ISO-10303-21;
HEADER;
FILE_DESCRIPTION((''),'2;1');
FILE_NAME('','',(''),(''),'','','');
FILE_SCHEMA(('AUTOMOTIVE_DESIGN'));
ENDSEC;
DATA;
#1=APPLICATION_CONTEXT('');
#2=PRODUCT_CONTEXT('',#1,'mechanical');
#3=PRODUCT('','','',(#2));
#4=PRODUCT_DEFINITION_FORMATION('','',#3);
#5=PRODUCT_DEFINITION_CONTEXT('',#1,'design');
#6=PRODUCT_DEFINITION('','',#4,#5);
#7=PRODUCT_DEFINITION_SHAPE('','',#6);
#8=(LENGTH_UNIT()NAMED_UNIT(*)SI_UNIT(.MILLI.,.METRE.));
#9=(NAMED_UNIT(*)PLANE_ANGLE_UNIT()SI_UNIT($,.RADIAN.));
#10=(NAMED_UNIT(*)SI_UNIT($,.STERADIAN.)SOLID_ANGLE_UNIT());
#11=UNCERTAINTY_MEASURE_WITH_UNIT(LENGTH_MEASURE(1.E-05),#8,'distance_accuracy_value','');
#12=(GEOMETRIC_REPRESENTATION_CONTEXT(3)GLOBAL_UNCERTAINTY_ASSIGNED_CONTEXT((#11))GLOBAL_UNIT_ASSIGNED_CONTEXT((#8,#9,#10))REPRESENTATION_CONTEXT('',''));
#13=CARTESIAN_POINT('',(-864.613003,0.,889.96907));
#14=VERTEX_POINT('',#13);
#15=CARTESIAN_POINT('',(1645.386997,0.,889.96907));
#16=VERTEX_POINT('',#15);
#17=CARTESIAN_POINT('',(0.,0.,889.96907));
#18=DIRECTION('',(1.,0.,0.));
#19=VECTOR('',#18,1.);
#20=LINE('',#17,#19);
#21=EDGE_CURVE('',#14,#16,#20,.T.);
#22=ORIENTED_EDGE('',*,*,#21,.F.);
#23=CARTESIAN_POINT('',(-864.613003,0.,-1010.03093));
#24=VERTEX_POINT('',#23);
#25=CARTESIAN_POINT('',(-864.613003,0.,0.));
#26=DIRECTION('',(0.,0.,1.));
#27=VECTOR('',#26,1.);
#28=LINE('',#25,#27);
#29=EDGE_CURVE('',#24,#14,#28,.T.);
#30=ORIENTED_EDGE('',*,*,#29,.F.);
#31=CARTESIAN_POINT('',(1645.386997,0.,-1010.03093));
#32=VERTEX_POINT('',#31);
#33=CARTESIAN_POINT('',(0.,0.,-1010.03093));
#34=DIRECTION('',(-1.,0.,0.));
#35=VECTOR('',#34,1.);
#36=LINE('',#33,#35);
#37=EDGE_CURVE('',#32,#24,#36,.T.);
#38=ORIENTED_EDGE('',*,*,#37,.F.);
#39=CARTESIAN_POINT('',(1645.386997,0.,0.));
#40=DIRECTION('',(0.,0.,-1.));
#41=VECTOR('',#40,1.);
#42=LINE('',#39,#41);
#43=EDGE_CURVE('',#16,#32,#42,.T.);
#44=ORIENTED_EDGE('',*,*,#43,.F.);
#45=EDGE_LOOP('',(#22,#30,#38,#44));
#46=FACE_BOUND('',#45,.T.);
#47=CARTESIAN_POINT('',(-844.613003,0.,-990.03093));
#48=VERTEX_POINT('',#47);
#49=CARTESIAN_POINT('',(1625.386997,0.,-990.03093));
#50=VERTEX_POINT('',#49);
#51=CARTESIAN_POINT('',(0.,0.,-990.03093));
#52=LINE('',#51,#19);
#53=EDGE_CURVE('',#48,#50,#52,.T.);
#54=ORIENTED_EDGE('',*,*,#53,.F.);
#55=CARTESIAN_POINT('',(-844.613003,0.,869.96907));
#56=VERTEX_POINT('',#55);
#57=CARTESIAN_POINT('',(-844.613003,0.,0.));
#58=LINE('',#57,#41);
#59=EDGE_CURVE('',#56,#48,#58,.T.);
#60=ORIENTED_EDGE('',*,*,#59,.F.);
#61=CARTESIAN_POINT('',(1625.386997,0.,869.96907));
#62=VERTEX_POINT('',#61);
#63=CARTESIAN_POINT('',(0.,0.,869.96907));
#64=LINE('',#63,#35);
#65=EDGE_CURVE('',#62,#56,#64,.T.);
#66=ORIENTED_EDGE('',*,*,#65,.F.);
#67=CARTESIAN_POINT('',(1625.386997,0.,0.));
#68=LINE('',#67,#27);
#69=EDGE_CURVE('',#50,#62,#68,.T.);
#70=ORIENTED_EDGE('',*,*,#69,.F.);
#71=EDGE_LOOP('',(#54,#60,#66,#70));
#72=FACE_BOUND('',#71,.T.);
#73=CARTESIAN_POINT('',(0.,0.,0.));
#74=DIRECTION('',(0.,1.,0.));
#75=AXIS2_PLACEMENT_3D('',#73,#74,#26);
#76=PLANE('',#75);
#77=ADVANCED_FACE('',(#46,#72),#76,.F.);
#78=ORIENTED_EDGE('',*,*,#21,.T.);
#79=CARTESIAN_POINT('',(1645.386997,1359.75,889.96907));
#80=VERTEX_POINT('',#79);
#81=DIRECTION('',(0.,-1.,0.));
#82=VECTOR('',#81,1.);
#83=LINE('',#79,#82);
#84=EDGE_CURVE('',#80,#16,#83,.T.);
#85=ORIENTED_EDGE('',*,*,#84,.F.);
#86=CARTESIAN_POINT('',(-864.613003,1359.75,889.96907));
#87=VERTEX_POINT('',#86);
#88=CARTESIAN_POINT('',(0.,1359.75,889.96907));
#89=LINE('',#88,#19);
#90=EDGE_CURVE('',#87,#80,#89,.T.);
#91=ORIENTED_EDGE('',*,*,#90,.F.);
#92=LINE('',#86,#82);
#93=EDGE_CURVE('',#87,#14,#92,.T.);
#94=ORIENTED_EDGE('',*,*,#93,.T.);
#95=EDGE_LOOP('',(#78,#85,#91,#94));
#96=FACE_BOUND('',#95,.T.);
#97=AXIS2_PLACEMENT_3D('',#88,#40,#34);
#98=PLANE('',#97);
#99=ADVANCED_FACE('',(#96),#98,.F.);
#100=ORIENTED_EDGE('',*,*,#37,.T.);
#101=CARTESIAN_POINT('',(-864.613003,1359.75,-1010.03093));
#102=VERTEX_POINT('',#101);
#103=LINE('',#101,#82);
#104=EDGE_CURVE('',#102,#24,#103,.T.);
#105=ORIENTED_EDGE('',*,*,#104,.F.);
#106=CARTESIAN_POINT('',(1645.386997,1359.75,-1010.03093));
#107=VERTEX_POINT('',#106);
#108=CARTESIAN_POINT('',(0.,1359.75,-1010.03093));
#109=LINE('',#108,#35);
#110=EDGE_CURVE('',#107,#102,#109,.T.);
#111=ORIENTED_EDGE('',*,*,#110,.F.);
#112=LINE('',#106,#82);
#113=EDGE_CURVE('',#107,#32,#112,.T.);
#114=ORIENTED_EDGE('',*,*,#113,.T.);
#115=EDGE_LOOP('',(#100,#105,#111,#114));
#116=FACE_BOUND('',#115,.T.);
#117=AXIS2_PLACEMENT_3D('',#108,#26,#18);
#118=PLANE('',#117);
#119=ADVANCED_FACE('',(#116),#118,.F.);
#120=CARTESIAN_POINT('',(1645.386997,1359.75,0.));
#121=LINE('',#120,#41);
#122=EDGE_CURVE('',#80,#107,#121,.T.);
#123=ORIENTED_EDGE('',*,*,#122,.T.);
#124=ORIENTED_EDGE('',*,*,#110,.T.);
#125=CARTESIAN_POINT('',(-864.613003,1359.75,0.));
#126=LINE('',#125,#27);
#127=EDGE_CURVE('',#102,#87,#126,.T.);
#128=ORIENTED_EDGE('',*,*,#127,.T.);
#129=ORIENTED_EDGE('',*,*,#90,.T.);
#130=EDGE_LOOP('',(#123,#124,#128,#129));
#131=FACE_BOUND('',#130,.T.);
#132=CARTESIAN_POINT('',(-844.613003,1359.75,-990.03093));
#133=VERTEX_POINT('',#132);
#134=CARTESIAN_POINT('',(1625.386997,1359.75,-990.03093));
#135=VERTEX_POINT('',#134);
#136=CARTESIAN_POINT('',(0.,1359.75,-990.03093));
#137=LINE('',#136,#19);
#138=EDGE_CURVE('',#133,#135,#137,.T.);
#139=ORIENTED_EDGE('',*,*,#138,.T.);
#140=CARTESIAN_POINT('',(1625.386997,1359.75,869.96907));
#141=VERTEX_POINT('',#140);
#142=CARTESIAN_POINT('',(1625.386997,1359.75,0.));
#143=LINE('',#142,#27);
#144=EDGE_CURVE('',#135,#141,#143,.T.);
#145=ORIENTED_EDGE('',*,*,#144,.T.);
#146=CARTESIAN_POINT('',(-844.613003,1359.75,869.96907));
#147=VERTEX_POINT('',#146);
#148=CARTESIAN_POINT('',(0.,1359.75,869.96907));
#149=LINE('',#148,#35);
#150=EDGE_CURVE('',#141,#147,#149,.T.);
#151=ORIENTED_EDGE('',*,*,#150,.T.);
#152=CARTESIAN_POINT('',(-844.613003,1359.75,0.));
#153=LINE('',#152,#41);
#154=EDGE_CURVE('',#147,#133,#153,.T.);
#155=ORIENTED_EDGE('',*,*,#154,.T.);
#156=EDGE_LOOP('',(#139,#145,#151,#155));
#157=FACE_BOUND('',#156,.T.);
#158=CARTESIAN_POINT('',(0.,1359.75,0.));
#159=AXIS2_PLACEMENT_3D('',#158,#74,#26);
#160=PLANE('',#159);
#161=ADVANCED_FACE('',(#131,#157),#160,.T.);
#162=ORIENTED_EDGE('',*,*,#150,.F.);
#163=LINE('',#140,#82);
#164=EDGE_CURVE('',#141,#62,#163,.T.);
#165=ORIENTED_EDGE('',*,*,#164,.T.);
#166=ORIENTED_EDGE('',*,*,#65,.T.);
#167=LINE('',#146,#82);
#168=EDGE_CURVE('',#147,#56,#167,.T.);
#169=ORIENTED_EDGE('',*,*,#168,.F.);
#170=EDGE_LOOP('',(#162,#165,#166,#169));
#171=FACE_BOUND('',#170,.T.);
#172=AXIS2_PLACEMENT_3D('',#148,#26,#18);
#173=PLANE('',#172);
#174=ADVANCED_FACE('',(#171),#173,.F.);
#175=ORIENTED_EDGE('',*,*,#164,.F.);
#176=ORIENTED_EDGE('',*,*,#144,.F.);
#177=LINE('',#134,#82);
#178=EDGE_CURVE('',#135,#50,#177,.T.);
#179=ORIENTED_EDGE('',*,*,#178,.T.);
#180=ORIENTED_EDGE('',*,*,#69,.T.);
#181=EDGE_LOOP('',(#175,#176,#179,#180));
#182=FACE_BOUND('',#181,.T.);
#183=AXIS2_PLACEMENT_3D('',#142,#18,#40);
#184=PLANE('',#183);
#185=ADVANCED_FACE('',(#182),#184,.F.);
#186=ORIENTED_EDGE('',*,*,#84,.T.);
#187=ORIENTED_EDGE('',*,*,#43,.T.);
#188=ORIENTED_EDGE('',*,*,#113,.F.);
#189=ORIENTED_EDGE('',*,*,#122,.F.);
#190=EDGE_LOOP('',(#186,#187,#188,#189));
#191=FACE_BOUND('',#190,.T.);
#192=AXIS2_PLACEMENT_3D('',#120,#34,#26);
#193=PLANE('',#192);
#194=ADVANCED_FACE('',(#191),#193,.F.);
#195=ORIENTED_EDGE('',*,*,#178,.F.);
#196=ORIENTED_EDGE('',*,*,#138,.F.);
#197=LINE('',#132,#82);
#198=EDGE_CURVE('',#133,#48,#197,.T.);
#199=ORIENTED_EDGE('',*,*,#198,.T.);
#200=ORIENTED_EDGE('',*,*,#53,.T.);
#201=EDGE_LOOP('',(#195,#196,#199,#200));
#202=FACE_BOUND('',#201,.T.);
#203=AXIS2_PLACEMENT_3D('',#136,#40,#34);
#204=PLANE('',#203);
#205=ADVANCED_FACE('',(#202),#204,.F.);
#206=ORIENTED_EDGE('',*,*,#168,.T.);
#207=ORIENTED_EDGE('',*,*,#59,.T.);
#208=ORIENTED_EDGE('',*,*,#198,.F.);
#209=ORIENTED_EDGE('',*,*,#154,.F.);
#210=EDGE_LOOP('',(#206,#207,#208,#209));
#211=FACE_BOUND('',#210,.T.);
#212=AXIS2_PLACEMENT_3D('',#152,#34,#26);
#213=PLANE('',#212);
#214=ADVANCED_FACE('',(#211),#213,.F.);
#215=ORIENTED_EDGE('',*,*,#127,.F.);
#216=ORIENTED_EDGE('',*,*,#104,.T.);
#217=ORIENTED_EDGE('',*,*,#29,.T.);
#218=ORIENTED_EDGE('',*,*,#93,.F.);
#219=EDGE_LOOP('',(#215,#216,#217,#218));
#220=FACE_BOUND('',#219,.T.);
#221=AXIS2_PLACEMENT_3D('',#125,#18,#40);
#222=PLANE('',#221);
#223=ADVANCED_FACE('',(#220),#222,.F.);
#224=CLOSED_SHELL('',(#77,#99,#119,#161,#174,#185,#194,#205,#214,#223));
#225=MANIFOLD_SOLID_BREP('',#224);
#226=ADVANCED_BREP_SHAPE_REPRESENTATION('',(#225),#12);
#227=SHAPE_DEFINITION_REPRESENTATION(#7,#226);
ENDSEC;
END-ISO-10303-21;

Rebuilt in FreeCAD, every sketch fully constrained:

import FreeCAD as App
import Part
import Sketcher


def add_polygon(sketch, points):
    """Adds a closed chain of lines whose ends are joined by coincident constraints."""
    first, n = sketch.GeometryCount, len(points)
    for a, b in zip(points, points[1:] + points[:1]):
        sketch.addGeometry(Part.LineSegment(App.Vector(*a, 0), App.Vector(*b, 0)), False)
    for i in range(n):
        sketch.addConstraint(Sketcher.Constraint("Coincident", first + i, 2, first + (i + 1) % n, 1))

doc = App.newDocument("Part")
body = doc.addObject("PartDesign::Body", "Body")

# Sketch on XZ plane
sketch1 = body.newObject("Sketcher::SketchObject", "Sketch")
sketch1.AttachmentSupport = (doc.getObject("XZ_Plane"), [""])
sketch1.MapMode = "FlatFace"
add_polygon(sketch1, [(1645, 890), (1645, -1010), (-865, -1010), (-865, 890)])  # lines 0-3
add_polygon(sketch1, [(-845, -990), (1625, -990), (1625, 870), (-845, 870)])  # lines 4-7
sketch1.addConstraint([
    Sketcher.Constraint("Vertical", 0),
    Sketcher.Constraint("Horizontal", 1),
    Sketcher.Constraint("Vertical", 2),
    Sketcher.Constraint("Horizontal", 3),
    Sketcher.Constraint("Horizontal", 4),
    Sketcher.Constraint("Vertical", 5),
    Sketcher.Constraint("Horizontal", 6),
    Sketcher.Constraint("Vertical", 7),
    Sketcher.Constraint("DistanceX", 1, 2, 1, 1, 2510.0),
    Sketcher.Constraint("DistanceX", 4, 1, 4, 2, 2470.0),
    Sketcher.Constraint("DistanceY", 0, 2, 0, 1, 1900.0),
    Sketcher.Constraint("DistanceY", 5, 1, 5, 2, 1860.0),
    Sketcher.Constraint("DistanceX", 4, 2, 0, 2, 20.0),
    Sketcher.Constraint("DistanceY", 0, 2, 4, 2, 20.0),
    Sketcher.Constraint("DistanceY", 0, 2, -1, 1, 1010.03093),
    Sketcher.Constraint("DistanceX", -1, 1, 0, 2, 1645.386997),
])
pad1 = body.newObject("PartDesign::Pad", "Pad")
pad1.Profile = sketch1
pad1.Length = 1359.75
pad1.Reversed = True

doc.recompute()
